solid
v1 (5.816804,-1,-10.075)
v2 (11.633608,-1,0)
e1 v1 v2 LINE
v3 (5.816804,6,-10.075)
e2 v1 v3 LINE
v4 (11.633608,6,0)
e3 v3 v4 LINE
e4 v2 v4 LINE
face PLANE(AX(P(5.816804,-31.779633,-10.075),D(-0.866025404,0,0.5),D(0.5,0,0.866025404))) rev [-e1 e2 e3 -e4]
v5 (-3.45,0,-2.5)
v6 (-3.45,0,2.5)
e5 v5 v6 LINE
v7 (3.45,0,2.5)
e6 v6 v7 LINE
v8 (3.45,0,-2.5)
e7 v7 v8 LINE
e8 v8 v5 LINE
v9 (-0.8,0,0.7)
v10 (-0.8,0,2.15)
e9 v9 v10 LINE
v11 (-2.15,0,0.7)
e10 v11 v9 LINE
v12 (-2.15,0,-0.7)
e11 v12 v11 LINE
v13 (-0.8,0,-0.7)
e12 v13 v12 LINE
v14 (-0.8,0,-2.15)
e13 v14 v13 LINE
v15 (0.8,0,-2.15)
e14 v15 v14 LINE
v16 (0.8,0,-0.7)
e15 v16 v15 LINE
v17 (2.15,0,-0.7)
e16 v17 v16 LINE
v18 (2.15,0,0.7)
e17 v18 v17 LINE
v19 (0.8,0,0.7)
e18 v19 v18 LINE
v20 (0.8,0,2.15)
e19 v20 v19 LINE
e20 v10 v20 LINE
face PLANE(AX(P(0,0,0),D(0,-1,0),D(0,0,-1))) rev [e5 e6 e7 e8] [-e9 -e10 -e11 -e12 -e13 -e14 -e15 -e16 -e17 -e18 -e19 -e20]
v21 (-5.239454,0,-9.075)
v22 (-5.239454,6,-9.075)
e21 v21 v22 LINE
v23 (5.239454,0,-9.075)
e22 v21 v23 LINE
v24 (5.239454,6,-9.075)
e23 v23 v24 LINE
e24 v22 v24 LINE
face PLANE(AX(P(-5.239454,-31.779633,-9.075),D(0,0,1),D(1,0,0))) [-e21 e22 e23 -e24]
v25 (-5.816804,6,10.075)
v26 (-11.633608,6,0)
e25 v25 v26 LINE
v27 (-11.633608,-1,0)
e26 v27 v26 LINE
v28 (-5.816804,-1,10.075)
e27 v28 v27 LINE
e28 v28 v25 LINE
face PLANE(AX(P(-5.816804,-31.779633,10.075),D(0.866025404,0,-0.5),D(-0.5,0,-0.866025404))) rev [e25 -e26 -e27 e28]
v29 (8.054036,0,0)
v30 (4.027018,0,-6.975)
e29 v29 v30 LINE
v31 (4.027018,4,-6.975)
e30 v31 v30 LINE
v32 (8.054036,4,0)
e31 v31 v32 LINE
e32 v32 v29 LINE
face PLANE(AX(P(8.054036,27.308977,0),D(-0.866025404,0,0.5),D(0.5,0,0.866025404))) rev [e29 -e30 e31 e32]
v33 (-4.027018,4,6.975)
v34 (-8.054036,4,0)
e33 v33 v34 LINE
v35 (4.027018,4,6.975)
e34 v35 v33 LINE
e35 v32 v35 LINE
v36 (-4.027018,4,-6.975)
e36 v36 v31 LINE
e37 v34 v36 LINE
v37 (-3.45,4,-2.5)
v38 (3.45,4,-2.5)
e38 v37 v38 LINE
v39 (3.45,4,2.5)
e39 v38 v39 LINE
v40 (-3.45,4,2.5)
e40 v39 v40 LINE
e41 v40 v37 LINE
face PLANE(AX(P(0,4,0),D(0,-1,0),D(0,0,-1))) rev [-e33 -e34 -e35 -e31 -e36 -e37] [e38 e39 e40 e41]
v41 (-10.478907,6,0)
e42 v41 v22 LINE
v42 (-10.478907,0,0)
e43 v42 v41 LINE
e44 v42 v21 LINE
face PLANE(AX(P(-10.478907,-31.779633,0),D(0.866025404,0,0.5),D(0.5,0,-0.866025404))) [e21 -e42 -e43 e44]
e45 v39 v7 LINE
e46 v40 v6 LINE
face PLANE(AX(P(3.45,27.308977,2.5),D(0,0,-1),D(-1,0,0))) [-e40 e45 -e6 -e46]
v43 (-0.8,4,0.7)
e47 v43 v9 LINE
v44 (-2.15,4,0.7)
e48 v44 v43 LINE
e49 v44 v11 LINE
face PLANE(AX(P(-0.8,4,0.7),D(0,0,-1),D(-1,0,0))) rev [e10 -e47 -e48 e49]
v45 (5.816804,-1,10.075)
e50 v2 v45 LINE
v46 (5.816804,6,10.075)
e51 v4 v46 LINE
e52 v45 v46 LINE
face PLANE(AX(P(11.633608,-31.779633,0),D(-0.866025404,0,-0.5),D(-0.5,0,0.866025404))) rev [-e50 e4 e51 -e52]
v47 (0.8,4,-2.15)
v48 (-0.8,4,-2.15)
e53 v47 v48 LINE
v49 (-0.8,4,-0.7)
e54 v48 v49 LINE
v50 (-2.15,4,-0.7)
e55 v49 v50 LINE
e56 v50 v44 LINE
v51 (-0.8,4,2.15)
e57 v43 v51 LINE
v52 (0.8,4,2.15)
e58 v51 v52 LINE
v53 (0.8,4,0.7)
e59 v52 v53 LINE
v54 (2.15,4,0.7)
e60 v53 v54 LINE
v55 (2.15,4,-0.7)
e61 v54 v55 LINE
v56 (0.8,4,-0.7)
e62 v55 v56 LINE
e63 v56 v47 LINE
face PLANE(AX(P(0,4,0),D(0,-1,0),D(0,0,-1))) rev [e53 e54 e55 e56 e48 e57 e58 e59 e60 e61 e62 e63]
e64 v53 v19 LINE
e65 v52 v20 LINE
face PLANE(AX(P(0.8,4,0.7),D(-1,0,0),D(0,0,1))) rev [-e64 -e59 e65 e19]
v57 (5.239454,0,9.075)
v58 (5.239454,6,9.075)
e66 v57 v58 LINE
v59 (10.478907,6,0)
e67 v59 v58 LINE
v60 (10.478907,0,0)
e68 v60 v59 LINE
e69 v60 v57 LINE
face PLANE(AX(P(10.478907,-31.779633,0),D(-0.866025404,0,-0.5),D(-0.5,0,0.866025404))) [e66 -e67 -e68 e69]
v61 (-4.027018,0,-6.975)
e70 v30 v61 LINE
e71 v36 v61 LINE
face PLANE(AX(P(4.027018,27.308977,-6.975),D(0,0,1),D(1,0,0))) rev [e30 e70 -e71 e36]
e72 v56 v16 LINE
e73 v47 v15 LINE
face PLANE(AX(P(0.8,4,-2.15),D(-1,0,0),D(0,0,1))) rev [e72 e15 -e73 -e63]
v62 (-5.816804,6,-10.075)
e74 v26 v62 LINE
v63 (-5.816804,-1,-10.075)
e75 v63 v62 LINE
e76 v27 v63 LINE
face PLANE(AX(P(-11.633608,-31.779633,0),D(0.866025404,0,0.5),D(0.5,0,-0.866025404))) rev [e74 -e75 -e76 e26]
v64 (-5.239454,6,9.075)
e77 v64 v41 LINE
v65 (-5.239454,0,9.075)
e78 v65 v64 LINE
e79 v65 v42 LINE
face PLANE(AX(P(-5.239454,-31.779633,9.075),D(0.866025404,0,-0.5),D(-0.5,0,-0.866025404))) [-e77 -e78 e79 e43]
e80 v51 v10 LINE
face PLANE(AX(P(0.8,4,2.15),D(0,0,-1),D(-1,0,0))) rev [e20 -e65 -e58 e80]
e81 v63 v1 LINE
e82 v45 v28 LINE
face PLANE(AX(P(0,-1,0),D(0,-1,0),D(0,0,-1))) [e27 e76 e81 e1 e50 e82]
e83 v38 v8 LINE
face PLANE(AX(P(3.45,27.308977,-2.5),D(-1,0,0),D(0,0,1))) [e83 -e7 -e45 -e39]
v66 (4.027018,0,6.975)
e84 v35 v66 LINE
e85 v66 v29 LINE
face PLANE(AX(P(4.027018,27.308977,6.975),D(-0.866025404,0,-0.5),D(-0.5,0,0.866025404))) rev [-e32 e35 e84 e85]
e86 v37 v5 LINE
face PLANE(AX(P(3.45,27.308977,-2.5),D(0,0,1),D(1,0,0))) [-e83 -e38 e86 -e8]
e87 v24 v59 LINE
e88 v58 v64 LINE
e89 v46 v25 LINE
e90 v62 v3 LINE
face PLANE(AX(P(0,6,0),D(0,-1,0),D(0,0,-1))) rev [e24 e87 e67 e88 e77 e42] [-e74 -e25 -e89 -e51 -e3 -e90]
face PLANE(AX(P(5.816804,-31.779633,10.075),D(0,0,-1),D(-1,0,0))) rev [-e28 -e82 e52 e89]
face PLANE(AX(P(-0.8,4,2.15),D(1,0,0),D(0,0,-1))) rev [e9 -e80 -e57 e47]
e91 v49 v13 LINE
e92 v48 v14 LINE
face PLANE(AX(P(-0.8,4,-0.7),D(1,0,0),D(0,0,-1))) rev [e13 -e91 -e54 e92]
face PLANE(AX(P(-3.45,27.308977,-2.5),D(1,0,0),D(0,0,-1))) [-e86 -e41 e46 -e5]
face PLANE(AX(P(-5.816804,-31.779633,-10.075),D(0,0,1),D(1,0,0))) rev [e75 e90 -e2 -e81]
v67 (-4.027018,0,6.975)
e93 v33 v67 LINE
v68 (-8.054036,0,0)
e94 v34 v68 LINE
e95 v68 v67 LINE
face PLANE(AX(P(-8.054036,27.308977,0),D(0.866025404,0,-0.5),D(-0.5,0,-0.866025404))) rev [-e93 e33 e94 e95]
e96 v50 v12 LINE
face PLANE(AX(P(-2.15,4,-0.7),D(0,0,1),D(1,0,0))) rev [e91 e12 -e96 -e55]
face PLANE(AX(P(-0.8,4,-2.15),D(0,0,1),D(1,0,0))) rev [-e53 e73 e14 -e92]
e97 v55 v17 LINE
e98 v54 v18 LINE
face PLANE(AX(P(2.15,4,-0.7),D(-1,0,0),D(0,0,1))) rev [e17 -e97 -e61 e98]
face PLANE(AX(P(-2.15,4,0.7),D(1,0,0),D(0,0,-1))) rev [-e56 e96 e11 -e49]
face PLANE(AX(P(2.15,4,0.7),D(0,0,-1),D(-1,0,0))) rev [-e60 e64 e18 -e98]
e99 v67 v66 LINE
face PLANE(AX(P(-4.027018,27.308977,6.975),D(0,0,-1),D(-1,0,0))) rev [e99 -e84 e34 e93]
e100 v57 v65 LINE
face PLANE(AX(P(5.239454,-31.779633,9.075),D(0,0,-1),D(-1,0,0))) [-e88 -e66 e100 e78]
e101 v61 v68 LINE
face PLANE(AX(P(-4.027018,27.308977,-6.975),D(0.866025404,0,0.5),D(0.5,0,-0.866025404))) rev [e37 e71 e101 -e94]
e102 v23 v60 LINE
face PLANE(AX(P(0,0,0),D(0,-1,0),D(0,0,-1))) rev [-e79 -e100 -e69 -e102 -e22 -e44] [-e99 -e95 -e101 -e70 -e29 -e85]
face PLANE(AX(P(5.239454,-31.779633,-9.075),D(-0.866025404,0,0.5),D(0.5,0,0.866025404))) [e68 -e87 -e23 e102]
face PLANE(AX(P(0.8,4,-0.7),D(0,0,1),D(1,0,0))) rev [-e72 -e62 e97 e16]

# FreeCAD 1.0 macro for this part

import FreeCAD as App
import Part
import Sketcher
Q = App.Units.Quantity

doc = App.newDocument("Part")
params = doc.addObject("Spreadsheet::Sheet", "Params")
for row, (alias, value) in enumerate([
    ("sketch1_width", "1.6 mm"),
    ("sketch1_height", "1.4 mm"),
    ("sketch1_width2", "1.35 mm"),
    ("sketch1_height2", "1.45 mm"),
    ("pad1_length", "4 mm"),
    ("pad2_length", "1 mm"),
    ("pad3_length", "1 mm"),
    ("pad3_length2", "6 mm"),
    ("sketch4_height", "5 mm"),
    ("sketch4_width", "6.9 mm"),
    ("pad4_length", "4 mm"),
], start=1):
    params.set(f"A{row}", alias)
    params.set(f"B{row}", "=" + value)
    params.setAlias(f"B{row}", alias)

body = doc.addObject("PartDesign::Body", "Body")

# Sketch on XZ plane
sketch1 = body.newObject("Sketcher::SketchObject", "Sketch")
sketch1.AttachmentSupport = (doc.getObject("XZ_Plane"), [""])
sketch1.MapMode = "FlatFace"
sketch1.addGeometry(Part.LineSegment(App.Vector(0.8, -2.15, 0), App.Vector(-0.8, -2.15, 0)), False)
sketch1.addGeometry(Part.LineSegment(App.Vector(-0.8, -2.15, 0), App.Vector(-0.8, -0.7, 0)), False)
sketch1.addGeometry(Part.LineSegment(App.Vector(-0.8, -0.7, 0), App.Vector(-2.15, -0.7, 0)), False)
sketch1.addGeometry(Part.LineSegment(App.Vector(-2.15, -0.7, 0), App.Vector(-2.15, 0.7, 0)), False)
sketch1.addGeometry(Part.LineSegment(App.Vector(-2.15, 0.7, 0), App.Vector(-0.8, 0.7, 0)), False)
sketch1.addGeometry(Part.LineSegment(App.Vector(-0.8, 0.7, 0), App.Vector(-0.8, 2.15, 0)), False)
sketch1.addGeometry(Part.LineSegment(App.Vector(-0.8, 2.15, 0), App.Vector(0.8, 2.15, 0)), False)
sketch1.addGeometry(Part.LineSegment(App.Vector(0.8, 2.15, 0), App.Vector(0.8, 0.7, 0)), False)
sketch1.addGeometry(Part.LineSegment(App.Vector(0.8, 0.7, 0), App.Vector(2.15, 0.7, 0)), False)
sketch1.addGeometry(Part.LineSegment(App.Vector(2.15, 0.7, 0), App.Vector(2.15, -0.7, 0)), False)
sketch1.addGeometry(Part.LineSegment(App.Vector(2.15, -0.7, 0), App.Vector(0.8, -0.7, 0)), False)
sketch1.addGeometry(Part.LineSegment(App.Vector(0.8, -0.7, 0), App.Vector(0.8, -2.15, 0)), False)
sketch1.addConstraint(Sketcher.Constraint("Coincident", 0, 2, 1, 1))
sketch1.addConstraint(Sketcher.Constraint("Coincident", 1, 2, 2, 1))
sketch1.addConstraint(Sketcher.Constraint("Coincident", 2, 2, 3, 1))
sketch1.addConstraint(Sketcher.Constraint("Coincident", 3, 2, 4, 1))
sketch1.addConstraint(Sketcher.Constraint("Coincident", 4, 2, 5, 1))
sketch1.addConstraint(Sketcher.Constraint("Coincident", 5, 2, 6, 1))
sketch1.addConstraint(Sketcher.Constraint("Coincident", 6, 2, 7, 1))
sketch1.addConstraint(Sketcher.Constraint("Coincident", 7, 2, 8, 1))
sketch1.addConstraint(Sketcher.Constraint("Coincident", 8, 2, 9, 1))
sketch1.addConstraint(Sketcher.Constraint("Coincident", 9, 2, 10, 1))
sketch1.addConstraint(Sketcher.Constraint("Coincident", 10, 2, 11, 1))
sketch1.addConstraint(Sketcher.Constraint("Coincident", 11, 2, 0, 1))
sketch1.addConstraint(Sketcher.Constraint("Horizontal", 0))
sketch1.addConstraint(Sketcher.Constraint("Vertical", 1))
sketch1.addConstraint(Sketcher.Constraint("Horizontal", 2))
sketch1.addConstraint(Sketcher.Constraint("Vertical", 3))
sketch1.addConstraint(Sketcher.Constraint("Horizontal", 4))
sketch1.addConstraint(Sketcher.Constraint("Vertical", 5))
sketch1.addConstraint(Sketcher.Constraint("Horizontal", 6))
sketch1.addConstraint(Sketcher.Constraint("Vertical", 7))
sketch1.addConstraint(Sketcher.Constraint("Horizontal", 8))
sketch1.addConstraint(Sketcher.Constraint("Vertical", 9))
sketch1.addConstraint(Sketcher.Constraint("Horizontal", 10))
sketch1.addConstraint(Sketcher.Constraint("Vertical", 11))
sketch1.addConstraint(Sketcher.Constraint("Symmetric", 0, 2, 6, 2, -1, 1))
sketch1.addConstraint(Sketcher.Constraint("Symmetric", 2, 2, 8, 2, -1, 1))
sketch1.addConstraint(Sketcher.Constraint("Symmetric", 4, 2, 10, 2, -1, 1))
sketch1.addConstraint(Sketcher.Constraint("Symmetric", 4, 2, 7, 2, -2))
sketch1.addConstraint(Sketcher.Constraint("DistanceX", 0, 2, 0, 1, 1.6))
sketch1.addConstraint(Sketcher.Constraint("DistanceY", 3, 1, 3, 2, 1.4))
sketch1.addConstraint(Sketcher.Constraint("DistanceX", 2, 2, 2, 1, 1.35))
sketch1.addConstraint(Sketcher.Constraint("DistanceY", 1, 1, 1, 2, 1.45))
sketch1.setExpression("Constraints[28]", "Params.sketch1_width")
sketch1.setExpression("Constraints[29]", "Params.sketch1_height")
sketch1.setExpression("Constraints[30]", "Params.sketch1_width2")
sketch1.setExpression("Constraints[31]", "Params.sketch1_height2")
pad1 = body.newObject("PartDesign::Pad", "Pad")
pad1.Profile = sketch1
pad1.setExpression("Length", "Params.pad1_length")
pad1.Reversed = True

# Sketch on XZ plane
sketch2 = body.newObject("Sketcher::SketchObject", "Sketch001")
sketch2.AttachmentSupport = (doc.getObject("XZ_Plane"), [""])
sketch2.MapMode = "FlatFace"
sketch2.addGeometry(Part.LineSegment(App.Vector(10.478907, 0, 0), App.Vector(5.239454, 9.075, 0)), False)
sketch2.addGeometry(Part.LineSegment(App.Vector(5.239454, 9.075, 0), App.Vector(-5.239454, 9.075, 0)), False)
sketch2.addGeometry(Part.LineSegment(App.Vector(-5.239454, 9.075, 0), App.Vector(-10.478907, 0, 0)), False)
sketch2.addGeometry(Part.LineSegment(App.Vector(-10.478907, 0, 0), App.Vector(-5.239454, -9.075, 0)), False)
sketch2.addGeometry(Part.LineSegment(App.Vector(-5.239454, -9.075, 0), App.Vector(5.239454, -9.075, 0)), False)
sketch2.addGeometry(Part.LineSegment(App.Vector(5.239454, -9.075, 0), App.Vector(10.478907, 0, 0)), False)
sketch2.addConstraint(Sketcher.Constraint("Coincident", 0, 2, 1, 1))
sketch2.addConstraint(Sketcher.Constraint("Coincident", 1, 2, 2, 1))
sketch2.addConstraint(Sketcher.Constraint("Coincident", 2, 2, 3, 1))
sketch2.addConstraint(Sketcher.Constraint("Coincident", 3, 2, 4, 1))
sketch2.addConstraint(Sketcher.Constraint("Coincident", 4, 2, 5, 1))
sketch2.addConstraint(Sketcher.Constraint("Coincident", 5, 2, 0, 1))
sketch2.addConstraint(Sketcher.Constraint("Horizontal", 1))
sketch2.addConstraint(Sketcher.Constraint("Horizontal", 4))
sketch2.addConstraint(Sketcher.Constraint("Symmetric", 0, 2, 3, 2, -1, 1))
sketch2.addConstraint(Sketcher.Constraint("Symmetric", 2, 2, 5, 2, -1, 1))
sketch2.addConstraint(Sketcher.Constraint("PointOnObject", 2, 2, -1))
sketch2.addConstraint(Sketcher.Constraint("Parallel", 2, 5))
sketch2.addConstraint(Sketcher.Constraint("Vertical", 1, 2, 3, 2))
sketch2.addConstraint(Sketcher.Constraint("Angle", 0, Q("120 deg")))
sketch2.addConstraint(Sketcher.Constraint("DistanceY", 3, 2, 1, 2, 18.15))
sketch2.addConstraint(Sketcher.Constraint("DistanceX", 1, 2, 1, 1, 10.478907))
pad2 = body.newObject("PartDesign::Pad", "Pad001")
pad2.Profile = sketch2
pad2.setExpression("Length", "Params.pad2_length")

# Sketch on XZ plane
sketch3 = body.newObject("Sketcher::SketchObject", "Sketch002")
sketch3.AttachmentSupport = (doc.getObject("XZ_Plane"), [""])
sketch3.MapMode = "FlatFace"
sketch3.addGeometry(Part.LineSegment(App.Vector(5.816804, -10.075, 0), App.Vector(11.633608, 0, 0)), False)
sketch3.addGeometry(Part.LineSegment(App.Vector(11.633608, 0, 0), App.Vector(5.816804, 10.075, 0)), False)
sketch3.addGeometry(Part.LineSegment(App.Vector(5.816804, 10.075, 0), App.Vector(-5.816804, 10.075, 0)), False)
sketch3.addGeometry(Part.LineSegment(App.Vector(-5.816804, 10.075, 0), App.Vector(-11.633608, 0, 0)), False)
sketch3.addGeometry(Part.LineSegment(App.Vector(-11.633608, 0, 0), App.Vector(-5.816804, -10.075, 0)), False)
sketch3.addGeometry(Part.LineSegment(App.Vector(-5.816804, -10.075, 0), App.Vector(5.816804, -10.075, 0)), False)
sketch3.addGeometry(Part.LineSegment(App.Vector(10.478907, 0, 0), App.Vector(5.239454, -9.075, 0)), False)
sketch3.addGeometry(Part.LineSegment(App.Vector(5.239454, -9.075, 0), App.Vector(-5.239454, -9.075, 0)), False)
sketch3.addGeometry(Part.LineSegment(App.Vector(-5.239454, -9.075, 0), App.Vector(-10.478907, 0, 0)), False)
sketch3.addGeometry(Part.LineSegment(App.Vector(-10.478907, 0, 0), App.Vector(-5.239454, 9.075, 0)), False)
sketch3.addGeometry(Part.LineSegment(App.Vector(-5.239454, 9.075, 0), App.Vector(5.239454, 9.075, 0)), False)
sketch3.addGeometry(Part.LineSegment(App.Vector(5.239454, 9.075, 0), App.Vector(10.478907, 0, 0)), False)
sketch3.addConstraint(Sketcher.Constraint("Coincident", 0, 2, 1, 1))
sketch3.addConstraint(Sketcher.Constraint("Coincident", 1, 2, 2, 1))
sketch3.addConstraint(Sketcher.Constraint("Coincident", 2, 2, 3, 1))
sketch3.addConstraint(Sketcher.Constraint("Coincident", 3, 2, 4, 1))
sketch3.addConstraint(Sketcher.Constraint("Coincident", 4, 2, 5, 1))
sketch3.addConstraint(Sketcher.Constraint("Coincident", 5, 2, 0, 1))
sketch3.addConstraint(Sketcher.Constraint("Coincident", 6, 2, 7, 1))
sketch3.addConstraint(Sketcher.Constraint("Coincident", 7, 2, 8, 1))
sketch3.addConstraint(Sketcher.Constraint("Coincident", 8, 2, 9, 1))
sketch3.addConstraint(Sketcher.Constraint("Coincident", 9, 2, 10, 1))
sketch3.addConstraint(Sketcher.Constraint("Coincident", 10, 2, 11, 1))
sketch3.addConstraint(Sketcher.Constraint("Coincident", 11, 2, 6, 1))
sketch3.addConstraint(Sketcher.Constraint("Horizontal", 2))
sketch3.addConstraint(Sketcher.Constraint("Horizontal", 5))
sketch3.addConstraint(Sketcher.Constraint("Horizontal", 7))
sketch3.addConstraint(Sketcher.Constraint("Horizontal", 10))
sketch3.addConstraint(Sketcher.Constraint("Symmetric", 0, 2, 3, 2, -1, 1))
sketch3.addConstraint(Sketcher.Constraint("Symmetric", 1, 2, 4, 2, -1, 1))
sketch3.addConstraint(Sketcher.Constraint("Symmetric", 6, 2, 9, 2, -1, 1))
sketch3.addConstraint(Sketcher.Constraint("Symmetric", 8, 2, 11, 2, -1, 1))
sketch3.addConstraint(Sketcher.Constraint("PointOnObject", 0, 2, -1))
sketch3.addConstraint(Sketcher.Constraint("PointOnObject", 8, 2, -1))
sketch3.addConstraint(Sketcher.Constraint("Parallel", 0, 3))
sketch3.addConstraint(Sketcher.Constraint("Parallel", 3, 6))
sketch3.addConstraint(Sketcher.Constraint("Parallel", 4, 8))
sketch3.addConstraint(Sketcher.Constraint("Parallel", 8, 11))
sketch3.addConstraint(Sketcher.Constraint("Vertical", 2, 2, 4, 2))
sketch3.addConstraint(Sketcher.Constraint("Angle", 0, Q("60 deg")))
sketch3.addConstraint(Sketcher.Constraint("DistanceY", 5, 2, 6, 2, 1.0))
sketch3.addConstraint(Sketcher.Constraint("DistanceY", 4, 2, 2, 2, 20.15))
sketch3.addConstraint(Sketcher.Constraint("DistanceX", 3, 2, 8, 2, 1.154701))
sketch3.addConstraint(Sketcher.Constraint("DistanceX", 2, 2, 2, 1, 11.633608))
pad3 = body.newObject("PartDesign::Pad", "Pad002")
pad3.Profile = sketch3
pad3.Type = "TwoLengths"
pad3.setExpression("Length", "Params.pad3_length")
pad3.setExpression("Length2", "Params.pad3_length2")

# Sketch on XZ plane
sketch4 = body.newObject("Sketcher::SketchObject", "Sketch003")
sketch4.AttachmentSupport = (doc.getObject("XZ_Plane"), [""])
sketch4.MapMode = "FlatFace"
sketch4.addGeometry(Part.LineSegment(App.Vector(8.054036, 0, 0), App.Vector(4.027018, -6.975, 0)), False)
sketch4.addGeometry(Part.LineSegment(App.Vector(4.027018, -6.975, 0), App.Vector(-4.027018, -6.975, 0)), False)
sketch4.addGeometry(Part.LineSegment(App.Vector(-4.027018, -6.975, 0), App.Vector(-8.054036, 0, 0)), False)
sketch4.addGeometry(Part.LineSegment(App.Vector(-8.054036, 0, 0), App.Vector(-4.027018, 6.975, 0)), False)
sketch4.addGeometry(Part.LineSegment(App.Vector(-4.027018, 6.975, 0), App.Vector(4.027018, 6.975, 0)), False)
sketch4.addGeometry(Part.LineSegment(App.Vector(4.027018, 6.975, 0), App.Vector(8.054036, 0, 0)), False)
sketch4.addGeometry(Part.LineSegment(App.Vector(3.45, 2.5, 0), App.Vector(-3.45, 2.5, 0)), False)
sketch4.addGeometry(Part.LineSegment(App.Vector(-3.45, 2.5, 0), App.Vector(-3.45, -2.5, 0)), False)
sketch4.addGeometry(Part.LineSegment(App.Vector(-3.45, -2.5, 0), App.Vector(3.45, -2.5, 0)), False)
sketch4.addGeometry(Part.LineSegment(App.Vector(3.45, -2.5, 0), App.Vector(3.45, 2.5, 0)), False)
sketch4.addConstraint(Sketcher.Constraint("Coincident", 0, 2, 1, 1))
sketch4.addConstraint(Sketcher.Constraint("Coincident", 1, 2, 2, 1))
sketch4.addConstraint(Sketcher.Constraint("Coincident", 2, 2, 3, 1))
sketch4.addConstraint(Sketcher.Constraint("Coincident", 3, 2, 4, 1))
sketch4.addConstraint(Sketcher.Constraint("Coincident", 4, 2, 5, 1))
sketch4.addConstraint(Sketcher.Constraint("Coincident", 5, 2, 0, 1))
sketch4.addConstraint(Sketcher.Constraint("Coincident", 6, 2, 7, 1))
sketch4.addConstraint(Sketcher.Constraint("Coincident", 7, 2, 8, 1))
sketch4.addConstraint(Sketcher.Constraint("Coincident", 8, 2, 9, 1))
sketch4.addConstraint(Sketcher.Constraint("Coincident", 9, 2, 6, 1))
sketch4.addConstraint(Sketcher.Constraint("Horizontal", 1))
sketch4.addConstraint(Sketcher.Constraint("Horizontal", 4))
sketch4.addConstraint(Sketcher.Constraint("Horizontal", 6))
sketch4.addConstraint(Sketcher.Constraint("Vertical", 7))
sketch4.addConstraint(Sketcher.Constraint("Horizontal", 8))
sketch4.addConstraint(Sketcher.Constraint("Vertical", 9))
sketch4.addConstraint(Sketcher.Constraint("Symmetric", 0, 2, 3, 2, -1, 1))
sketch4.addConstraint(Sketcher.Constraint("Symmetric", 2, 2, 5, 2, -1, 1))
sketch4.addConstraint(Sketcher.Constraint("Symmetric", 6, 2, 8, 2, -1, 1))
sketch4.addConstraint(Sketcher.Constraint("PointOnObject", 2, 2, -1))
sketch4.addConstraint(Sketcher.Constraint("Parallel", 2, 5))
sketch4.addConstraint(Sketcher.Constraint("Vertical", 1, 2, 3, 2))
sketch4.addConstraint(Sketcher.Constraint("DistanceY", 7, 2, 7, 1, 5.0))
sketch4.addConstraint(Sketcher.Constraint("Angle", 0, Q("-120 deg")))
sketch4.addConstraint(Sketcher.Constraint("DistanceX", 6, 2, 6, 1, 6.9))
sketch4.addConstraint(Sketcher.Constraint("DistanceY", 1, 2, 3, 2, 13.95))
sketch4.addConstraint(Sketcher.Constraint("DistanceX", 1, 2, 1, 1, 8.054036))
sketch4.setExpression("Constraints[22]", "Params.sketch4_height")
sketch4.setExpression("Constraints[24]", "Params.sketch4_width")
pad4 = body.newObject("PartDesign::Pad", "Pad003")
pad4.Profile = sketch4
pad4.setExpression("Length", "Params.pad4_length")
pad4.Reversed = True

doc.recompute()
